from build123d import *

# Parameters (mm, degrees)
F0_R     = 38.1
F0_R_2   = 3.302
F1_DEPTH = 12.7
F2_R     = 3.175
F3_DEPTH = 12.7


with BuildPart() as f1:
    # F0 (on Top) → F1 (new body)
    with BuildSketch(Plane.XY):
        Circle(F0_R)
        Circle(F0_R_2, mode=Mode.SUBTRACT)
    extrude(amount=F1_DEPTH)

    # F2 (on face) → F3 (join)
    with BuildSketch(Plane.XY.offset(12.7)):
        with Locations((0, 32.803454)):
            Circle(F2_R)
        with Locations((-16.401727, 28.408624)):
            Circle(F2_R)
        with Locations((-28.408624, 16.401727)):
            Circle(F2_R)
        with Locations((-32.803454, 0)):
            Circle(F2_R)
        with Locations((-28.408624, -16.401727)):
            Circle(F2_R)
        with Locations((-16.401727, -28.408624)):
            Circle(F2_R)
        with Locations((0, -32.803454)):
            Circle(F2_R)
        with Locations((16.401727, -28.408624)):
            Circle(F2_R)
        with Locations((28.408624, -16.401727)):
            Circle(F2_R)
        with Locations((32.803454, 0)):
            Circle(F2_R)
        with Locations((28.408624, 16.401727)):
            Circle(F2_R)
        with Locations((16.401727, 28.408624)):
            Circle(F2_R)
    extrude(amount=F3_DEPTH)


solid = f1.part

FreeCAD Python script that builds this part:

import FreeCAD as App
import Part
import Sketcher
Q = App.Units.Quantity

doc = App.newDocument("Part")
body = doc.addObject("PartDesign::Body", "Body")

sketch1 = doc.addObject("Sketcher::SketchObject", "Sketch")
body.addObject(sketch1)
sketch1.AttachmentSupport = (doc.XY_Plane, [""])
sketch1.MapMode = "FlatFace"
sketch1.addGeometry([
    Part.Circle(App.Vector(0, 0, 0), App.Vector(0, 0, 1), 38.1),
    Part.Circle(App.Vector(0, 0, 0), App.Vector(0, 0, 1), 3.3),
], False)
sketch1.addConstraint([
    Sketcher.Constraint("Coincident", 0, 3, -1, 1),
    Sketcher.Constraint("Coincident", 1, 3, -1, 1),
    Sketcher.Constraint("Diameter", 0, Q("3 in")),
    Sketcher.Constraint("Diameter", 1, Q("0.26 in")),
])
pad1 = doc.addObject("PartDesign::Pad", "Pad")
body.addObject(pad1)
pad1.Profile = sketch1
pad1.Length = Q("0.5 in")

sketch2 = doc.addObject("Sketcher::SketchObject", "Sketch001")
body.addObject(sketch2)
sketch2.AttachmentSupport = (doc.XY_Plane, [""])
sketch2.MapMode = "FlatFace"
sketch2.AttachmentOffset = App.Placement(App.Vector(0, 0, 0.5 * 25.4), App.Rotation())
sketch2.addGeometry([
    Part.Circle(App.Vector(0, 32.8, 0), App.Vector(0, 0, 1), 3.2),
    Part.Circle(App.Vector(-16.4, 28.4, 0), App.Vector(0, 0, 1), 3.2),
    Part.Circle(App.Vector(-28.4, 16.4, 0), App.Vector(0, 0, 1), 3.2),
    Part.Circle(App.Vector(-32.8, 0, 0), App.Vector(0, 0, 1), 3.2),
    Part.Circle(App.Vector(-28.4, -16.4, 0), App.Vector(0, 0, 1), 3.2),
    Part.Circle(App.Vector(-16.4, -28.4, 0), App.Vector(0, 0, 1), 3.2),
    Part.Circle(App.Vector(0, -32.8, 0), App.Vector(0, 0, 1), 3.2),
    Part.Circle(App.Vector(16.4, -28.4, 0), App.Vector(0, 0, 1), 3.2),
    Part.Circle(App.Vector(28.4, -16.4, 0), App.Vector(0, 0, 1), 3.2),
    Part.Circle(App.Vector(32.8, 0, 0), App.Vector(0, 0, 1), 3.2),
    Part.Circle(App.Vector(28.4, 16.4, 0), App.Vector(0, 0, 1), 3.2),
    Part.Circle(App.Vector(16.4, 28.4, 0), App.Vector(0, 0, 1), 3.2),
], False)
sketch2.addConstraint([
    Sketcher.Constraint("Equal", 0, 1),
    Sketcher.Constraint("Equal", 1, 2),
    Sketcher.Constraint("Equal", 2, 3),
    Sketcher.Constraint("Equal", 3, 4),
    Sketcher.Constraint("Equal", 4, 5),
    Sketcher.Constraint("Equal", 5, 6),
    Sketcher.Constraint("Equal", 6, 7),
    Sketcher.Constraint("Equal", 7, 8),
    Sketcher.Constraint("Equal", 8, 9),
    Sketcher.Constraint("Equal", 9, 10),
    Sketcher.Constraint("Equal", 10, 11),
    Sketcher.Constraint("Symmetric", 0, 3, 6, 3, -1, 1),
    Sketcher.Constraint("Symmetric", 1, 3, 7, 3, -1, 1),
    Sketcher.Constraint("Symmetric", 2, 3, 8, 3, -1, 1),
    Sketcher.Constraint("Symmetric", 3, 3, 9, 3, -1, 1),
    Sketcher.Constraint("Symmetric", 4, 3, 10, 3, -1, 1),
    Sketcher.Constraint("Symmetric", 5, 3, 11, 3, -1, 1),
    Sketcher.Constraint("Symmetric", 5, 3, 7, 3, -2),
    Sketcher.Constraint("Symmetric", 4, 3, 8, 3, -2),
    Sketcher.Constraint("PointOnObject", 0, 3, -2),
    Sketcher.Constraint("PointOnObject", 3, 3, -1),
    Sketcher.Constraint("Diameter", 0, Q("0.25 in")),
    Sketcher.Constraint("DistanceY", 1, 3, 0, 3, 4.39483),
    Sketcher.Constraint("DistanceX", 3, 3, 2, 3, 4.39483),
    Sketcher.Constraint("DistanceY", 4, 3, 1, 3, 44.810351),
    Sketcher.Constraint("DistanceY", 5, 3, 0, 3, 61.212078),
    Sketcher.Constraint("DistanceX", 4, 3, 7, 3, 44.810351),
    Sketcher.Constraint("DistanceX", 1, 3, -1, 1, 16.401727),
])
pad2 = doc.addObject("PartDesign::Pad", "Pad001")
body.addObject(pad2)
pad2.Profile = sketch2
pad2.Length = Q("0.5 in")

doc.recompute()
